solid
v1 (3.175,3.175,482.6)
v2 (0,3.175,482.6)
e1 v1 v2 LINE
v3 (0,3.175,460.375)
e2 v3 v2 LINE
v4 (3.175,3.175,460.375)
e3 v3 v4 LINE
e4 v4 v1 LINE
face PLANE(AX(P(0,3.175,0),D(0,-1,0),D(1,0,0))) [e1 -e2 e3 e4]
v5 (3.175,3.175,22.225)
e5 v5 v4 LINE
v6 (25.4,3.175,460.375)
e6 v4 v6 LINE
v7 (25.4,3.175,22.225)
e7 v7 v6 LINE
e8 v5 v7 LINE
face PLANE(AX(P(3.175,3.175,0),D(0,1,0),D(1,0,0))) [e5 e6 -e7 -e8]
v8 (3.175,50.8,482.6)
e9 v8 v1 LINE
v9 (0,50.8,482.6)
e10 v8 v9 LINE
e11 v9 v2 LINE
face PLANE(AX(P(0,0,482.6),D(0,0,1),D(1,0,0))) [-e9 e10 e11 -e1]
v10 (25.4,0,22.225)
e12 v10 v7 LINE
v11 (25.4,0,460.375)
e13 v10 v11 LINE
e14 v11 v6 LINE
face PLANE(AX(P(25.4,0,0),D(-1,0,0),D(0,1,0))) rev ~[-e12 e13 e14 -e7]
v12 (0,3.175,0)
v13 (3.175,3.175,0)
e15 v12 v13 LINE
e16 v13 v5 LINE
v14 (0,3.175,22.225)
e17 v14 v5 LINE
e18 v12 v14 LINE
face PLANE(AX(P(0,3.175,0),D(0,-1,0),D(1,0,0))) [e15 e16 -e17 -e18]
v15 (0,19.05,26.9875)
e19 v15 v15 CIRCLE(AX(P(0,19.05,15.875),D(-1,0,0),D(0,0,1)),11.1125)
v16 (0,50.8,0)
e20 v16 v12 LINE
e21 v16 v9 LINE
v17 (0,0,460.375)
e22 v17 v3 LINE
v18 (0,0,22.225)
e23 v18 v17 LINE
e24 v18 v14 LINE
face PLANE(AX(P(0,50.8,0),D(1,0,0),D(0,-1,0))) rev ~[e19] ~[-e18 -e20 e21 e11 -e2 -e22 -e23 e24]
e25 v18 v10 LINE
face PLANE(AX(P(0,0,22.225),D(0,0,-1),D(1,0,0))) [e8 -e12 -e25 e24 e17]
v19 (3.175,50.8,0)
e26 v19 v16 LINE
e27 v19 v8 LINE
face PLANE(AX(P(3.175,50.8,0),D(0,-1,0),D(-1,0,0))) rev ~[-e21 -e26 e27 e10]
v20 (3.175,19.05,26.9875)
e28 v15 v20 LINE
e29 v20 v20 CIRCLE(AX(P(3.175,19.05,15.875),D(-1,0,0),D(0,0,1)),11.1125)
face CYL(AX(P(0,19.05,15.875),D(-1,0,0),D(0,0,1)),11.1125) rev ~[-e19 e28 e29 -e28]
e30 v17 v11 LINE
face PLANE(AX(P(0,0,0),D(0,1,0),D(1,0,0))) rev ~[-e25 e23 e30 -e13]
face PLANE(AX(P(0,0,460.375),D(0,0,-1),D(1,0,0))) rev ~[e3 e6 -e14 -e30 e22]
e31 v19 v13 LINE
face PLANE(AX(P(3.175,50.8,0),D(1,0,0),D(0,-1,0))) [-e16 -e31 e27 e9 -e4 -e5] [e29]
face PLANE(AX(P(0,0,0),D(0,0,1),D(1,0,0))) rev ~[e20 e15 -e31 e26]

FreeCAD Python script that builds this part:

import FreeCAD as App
import Part
import Sketcher

V = App.Vector
Q = App.Units.Quantity

doc = App.newDocument("Part")
body = doc.addObject("PartDesign::Body", "Body")

# Sketch on XY plane
sketch1 = body.newObject("Sketcher::SketchObject", "Sketch")
sketch1.AttachmentSupport = (doc.getObject("XY_Plane"), [""])
sketch1.MapMode = "FlatFace"
sketch1.addGeometry([
    Part.LineSegment(V(0, 50.8, 0), V(0, 0, 0)),  # 0
    Part.LineSegment(V(0, 0, 0), V(25.4, 0, 0)),  # 1
    Part.LineSegment(V(25.4, 0, 0), V(25.4, 3.2, 0)),  # 2
    Part.LineSegment(V(25.4, 3.2, 0), V(3.2, 3.2, 0)),  # 3
    Part.LineSegment(V(3.2, 3.2, 0), V(3.2, 50.8, 0)),  # 4
    Part.LineSegment(V(3.2, 50.8, 0), V(0, 50.8, 0)),  # 5
], False)
sketch1.addConstraint([
    Sketcher.Constraint("Coincident", 0, 2, 1, 1),
    Sketcher.Constraint("Coincident", 1, 2, 2, 1),
    Sketcher.Constraint("Coincident", 2, 2, 3, 1),
    Sketcher.Constraint("Coincident", 3, 2, 4, 1),
    Sketcher.Constraint("Coincident", 4, 2, 5, 1),
    Sketcher.Constraint("Coincident", 5, 2, 0, 1),
    Sketcher.Constraint("Vertical", 0),
    Sketcher.Constraint("Horizontal", 1),
    Sketcher.Constraint("Vertical", 2),
    Sketcher.Constraint("Horizontal", 3),
    Sketcher.Constraint("Vertical", 4),
    Sketcher.Constraint("Horizontal", 5),
    Sketcher.Constraint("Coincident", 0, 2, -1, 1),
    Sketcher.Constraint("Equal", 5, 2),
    Sketcher.Constraint("DistanceX", 1, 1, 1, 2, Q("1 in")),
    Sketcher.Constraint("DistanceY", 0, 2, 0, 1, Q("2 in")),
    Sketcher.Constraint("DistanceX", 5, 2, 5, 1, Q("0.125 in")),
])
pad1 = body.newObject("PartDesign::Pad", "Pad")
pad1.Profile = sketch1
pad1.Length = Q("19 in")

# Sketch on YZ plane
sketch2 = body.newObject("Sketcher::SketchObject", "Sketch001")
sketch2.AttachmentSupport = (doc.getObject("YZ_Plane"), [""])
sketch2.MapMode = "FlatFace"
sketch2.addGeometry(Part.Circle(V(19, 16, 0), V(0, 0, 1), 11), False)
sketch2.addConstraint([
    Sketcher.Constraint("Diameter", 0, Q("0.875 in")),
    Sketcher.Constraint("DistanceX", -1, 1, 0, 3, Q("0.75 in")),
    Sketcher.Constraint("DistanceY", -1, 1, 0, 3, Q("0.625 in")),
])
pocket1 = body.newObject("PartDesign::Pocket", "Pocket")
pocket1.Profile = sketch2
pocket1.Length = Q("20 in")
pocket1.Reversed = True

# Sketch on XZ plane
sketch3 = body.newObject("Sketcher::SketchObject", "Sketch002")
sketch3.AttachmentSupport = (doc.getObject("XZ_Plane"), [""])
sketch3.MapMode = "FlatFace"
sketch3.addGeometry([
    Part.LineSegment(V(25, 460, 0), V(25, 483, 0)),  # 0
    Part.LineSegment(V(25, 483, 0), V(0, 483, 0)),  # 1
    Part.LineSegment(V(0, 483, 0), V(0, 460, 0)),  # 2
    Part.LineSegment(V(0, 460, 0), V(25, 460, 0)),  # 3
    Part.LineSegment(V(25, 0, 0), V(25, 22, 0)),  # 4
    Part.LineSegment(V(25, 22, 0), V(0, 22, 0)),  # 5
    Part.LineSegment(V(0, 22, 0), V(0, 0, 0)),  # 6
    Part.LineSegment(V(0, 0, 0), V(25, 0, 0)),  # 7
], False)
sketch3.addConstraint([
    Sketcher.Constraint("Coincident", 0, 2, 1, 1),
    Sketcher.Constraint("Coincident", 1, 2, 2, 1),
    Sketcher.Constraint("Coincident", 2, 2, 3, 1),
    Sketcher.Constraint("Coincident", 3, 2, 0, 1),
    Sketcher.Constraint("Coincident", 4, 2, 5, 1),
    Sketcher.Constraint("Coincident", 5, 2, 6, 1),
    Sketcher.Constraint("Coincident", 6, 2, 7, 1),
    Sketcher.Constraint("Coincident", 7, 2, 4, 1),
    Sketcher.Constraint("Vertical", 0),
    Sketcher.Constraint("Horizontal", 1),
    Sketcher.Constraint("Vertical", 2),
    Sketcher.Constraint("Horizontal", 3),
    Sketcher.Constraint("Vertical", 4),
    Sketcher.Constraint("Horizontal", 5),
    Sketcher.Constraint("Vertical", 6),
    Sketcher.Constraint("Horizontal", 7),
    Sketcher.Constraint("Coincident", 6, 2, -1, 1),
    Sketcher.Constraint("PointOnObject", 1, 2, -2),
    Sketcher.Constraint("Vertical", 3, 2, 4, 2),
    Sketcher.Constraint("Equal", 2, 4),
    Sketcher.Constraint("DistanceX", 1, 2, 1, 1, Q("1 in")),
    Sketcher.Constraint("DistanceY", 0, 1, 0, 2, Q("0.875 in")),
    Sketcher.Constraint("DistanceY", -1, 1, 0, 2, Q("19 in")),
])
pocket2 = body.newObject("PartDesign::Pocket", "Pocket001")
pocket2.Profile = sketch3
pocket2.Length = Q("0.125 in")

doc.recompute()
